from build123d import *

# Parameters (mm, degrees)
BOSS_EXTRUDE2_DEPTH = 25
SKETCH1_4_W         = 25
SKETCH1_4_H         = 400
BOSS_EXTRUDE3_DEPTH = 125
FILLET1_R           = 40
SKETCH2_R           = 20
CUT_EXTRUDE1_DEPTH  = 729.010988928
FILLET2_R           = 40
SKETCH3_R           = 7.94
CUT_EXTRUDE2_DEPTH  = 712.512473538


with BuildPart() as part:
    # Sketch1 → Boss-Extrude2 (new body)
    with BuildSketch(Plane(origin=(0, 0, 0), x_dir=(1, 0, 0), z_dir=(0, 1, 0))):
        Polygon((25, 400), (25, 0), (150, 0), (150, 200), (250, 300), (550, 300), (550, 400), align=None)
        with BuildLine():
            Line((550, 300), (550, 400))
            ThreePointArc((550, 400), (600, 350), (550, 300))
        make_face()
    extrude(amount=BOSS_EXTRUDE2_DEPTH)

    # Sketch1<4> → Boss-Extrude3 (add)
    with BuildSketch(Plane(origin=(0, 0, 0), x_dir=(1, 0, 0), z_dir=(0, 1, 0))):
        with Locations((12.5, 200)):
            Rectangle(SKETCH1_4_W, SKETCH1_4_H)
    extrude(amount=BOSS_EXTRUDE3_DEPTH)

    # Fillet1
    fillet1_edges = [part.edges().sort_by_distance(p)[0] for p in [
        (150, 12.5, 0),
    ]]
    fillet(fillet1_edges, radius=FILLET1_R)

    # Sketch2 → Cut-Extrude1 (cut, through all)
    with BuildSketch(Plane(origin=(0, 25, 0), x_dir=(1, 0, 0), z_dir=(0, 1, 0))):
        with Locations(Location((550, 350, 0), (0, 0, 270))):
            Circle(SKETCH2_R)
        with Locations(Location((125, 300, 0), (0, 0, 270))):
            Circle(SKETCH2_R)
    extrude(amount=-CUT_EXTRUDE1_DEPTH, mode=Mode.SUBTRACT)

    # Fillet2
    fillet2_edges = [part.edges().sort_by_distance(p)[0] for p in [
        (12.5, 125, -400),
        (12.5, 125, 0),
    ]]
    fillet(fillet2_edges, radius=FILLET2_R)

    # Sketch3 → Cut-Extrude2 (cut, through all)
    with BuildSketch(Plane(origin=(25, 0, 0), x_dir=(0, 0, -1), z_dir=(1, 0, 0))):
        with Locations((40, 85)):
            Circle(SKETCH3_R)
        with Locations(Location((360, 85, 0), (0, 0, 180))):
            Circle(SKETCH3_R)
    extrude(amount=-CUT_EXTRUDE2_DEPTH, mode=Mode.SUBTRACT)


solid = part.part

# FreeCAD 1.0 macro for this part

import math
import FreeCAD as App
import Part
import Sketcher

V = App.Vector


def edges_at(feature, points):
    """Names of the edges that pass closest to the given points."""
    edges = feature.Shape.Edges
    near = lambda p: min(range(len(edges)), key=lambda i: edges[i].distToShape(Part.Vertex(*p))[0])
    return sorted({f"Edge{near(p) + 1}" for p in points})

doc = App.newDocument("Part")
params = doc.addObject("Spreadsheet::Sheet", "Params")
for row, (alias, value) in enumerate([
    ("sketch1_radius", "50 mm"),
    ("sketch1_width", "125 mm"),
    ("sketch1_width2", "300 mm"),
    ("sketch1_width3", "525 mm"),
    ("sketch1_height", "400 mm"),
    ("pad1_length", "25 mm"),
    ("sketch2_width", "25 mm"),
    ("sketch2_height", "400 mm"),
    ("pad2_length", "125 mm"),
    ("fillet_radius", "40 mm"),
    ("sketch3_diameter", "40 mm"),
    ("fillet2_radius", "40 mm"),
    ("sketch4_diameter", "15.88 mm"),
], start=1):
    params.set(f"A{row}", alias)
    params.set(f"B{row}", "=" + value)
    params.setAlias(f"B{row}", alias)

body = doc.addObject("PartDesign::Body", "Body")

# Sketch on XZ plane
sketch1 = doc.addObject("Sketcher::SketchObject", "Sketch")
body.addObject(sketch1)
sketch1.AttachmentSupport = (doc.XZ_Plane, [""])
sketch1.MapMode = "FlatFace"
sketch1.addGeometry([
    Part.LineSegment(V(25, -400, 0), V(25, 0, 0)),  # 0
    Part.LineSegment(V(25, 0, 0), V(150, 0, 0)),  # 1
    Part.LineSegment(V(150, 0, 0), V(150, -200, 0)),  # 2
    Part.LineSegment(V(150, -200, 0), V(250, -300, 0)),  # 3
    Part.LineSegment(V(250, -300, 0), V(550, -300, 0)),  # 4
    Part.ArcOfCircle(Part.Circle(V(550, -350, 0), V(0, 0, 1), 50), math.radians(-90), math.radians(90)),  # 5
    Part.LineSegment(V(550, -400, 0), V(25, -400, 0)),  # 6
], False)
sketch1.addConstraint([
    Sketcher.Constraint("Coincident", 0, 2, 1, 1),
    Sketcher.Constraint("Coincident", 1, 2, 2, 1),
    Sketcher.Constraint("Coincident", 2, 2, 3, 1),
    Sketcher.Constraint("Coincident", 3, 2, 4, 1),
    Sketcher.Constraint("Tangent", 4, 2, 5, 2),
    Sketcher.Constraint("Tangent", 5, 1, 6, 1),
    Sketcher.Constraint("Coincident", 6, 2, 0, 1),
    Sketcher.Constraint("Vertical", 0),
    Sketcher.Constraint("Horizontal", 1),
    Sketcher.Constraint("Vertical", 2),
    Sketcher.Constraint("Horizontal", 4),
    Sketcher.Constraint("Horizontal", 6),
    Sketcher.Constraint("PointOnObject", 0, 2, -1),
    Sketcher.Constraint("Radius", 5, 50.0),
    Sketcher.Constraint("DistanceX", 1, 1, 1, 2, 125.0),
    Sketcher.Constraint("DistanceX", 4, 1, 4, 2, 300.0),
    Sketcher.Constraint("DistanceX", 6, 2, 6, 1, 525.0),
    Sketcher.Constraint("DistanceY", 0, 1, 0, 2, 400.0),
    Sketcher.Constraint("DistanceY", 2, 2, 2, 1, 200.0),
    Sketcher.Constraint("DistanceX", -1, 1, 5, 3, 550.0),
])
sketch1.setExpression("Constraints[13]", "Params.sketch1_radius")
sketch1.setExpression("Constraints[14]", "Params.sketch1_width")
sketch1.setExpression("Constraints[15]", "Params.sketch1_width2")
sketch1.setExpression("Constraints[16]", "Params.sketch1_width3")
sketch1.setExpression("Constraints[17]", "Params.sketch1_height")
pad1 = doc.addObject("PartDesign::Pad", "Pad")
body.addObject(pad1)
pad1.Profile = sketch1
pad1.setExpression("Length", "Params.pad1_length")
pad1.Reversed = True

# Sketch on XZ plane
sketch2 = doc.addObject("Sketcher::SketchObject", "Sketch001")
body.addObject(sketch2)
sketch2.AttachmentSupport = (doc.XZ_Plane, [""])
sketch2.MapMode = "FlatFace"
sketch2.addGeometry([
    Part.LineSegment(V(0, -400, 0), V(0, 0, 0)),
    Part.LineSegment(V(0, 0, 0), V(25, 0, 0)),
    Part.LineSegment(V(25, 0, 0), V(25, -400, 0)),
    Part.LineSegment(V(25, -400, 0), V(0, -400, 0)),
], False)
sketch2.addConstraint([
    Sketcher.Constraint("Coincident", 0, 2, 1, 1),
    Sketcher.Constraint("Coincident", 1, 2, 2, 1),
    Sketcher.Constraint("Coincident", 2, 2, 3, 1),
    Sketcher.Constraint("Coincident", 3, 2, 0, 1),
    Sketcher.Constraint("Vertical", 0),
    Sketcher.Constraint("Horizontal", 1),
    Sketcher.Constraint("Vertical", 2),
    Sketcher.Constraint("Horizontal", 3),
    Sketcher.Constraint("Coincident", 0, 2, -1, 1),
    Sketcher.Constraint("DistanceX", 1, 1, 1, 2, 25.0),
    Sketcher.Constraint("DistanceY", 0, 1, 0, 2, 400.0),
])
sketch2.setExpression("Constraints[9]", "Params.sketch2_width")
sketch2.setExpression("Constraints[10]", "Params.sketch2_height")
pad2 = doc.addObject("PartDesign::Pad", "Pad001")
body.addObject(pad2)
pad2.Profile = sketch2
pad2.setExpression("Length", "Params.pad2_length")
pad2.Reversed = True
doc.recompute()

fillet = doc.addObject("PartDesign::Fillet", "Fillet")
body.addObject(fillet)
fillet.Base = (pad2, edges_at(pad2, [(150, 12.5, 0)]))
fillet.setExpression("Radius", "Params.fillet_radius")

# Sketch on XZ plane
sketch3 = doc.addObject("Sketcher::SketchObject", "Sketch002")
body.addObject(sketch3)
sketch3.AttachmentSupport = (doc.XZ_Plane, [""])
sketch3.MapMode = "FlatFace"
sketch3.AttachmentOffset = App.Placement(V(0, 0, -25), App.Rotation())
sketch3.addGeometry([
    Part.Circle(V(550, -350, 0), V(0, 0, 1), 20),
    Part.Circle(V(125, -300, 0), V(0, 0, 1), 20),
], False)
sketch3.addConstraint([
    Sketcher.Constraint("Equal", 0, 1),
    Sketcher.Constraint("Diameter", 0, 40.0),
    Sketcher.Constraint("DistanceX", -1, 1, 0, 3, 550.0),
    Sketcher.Constraint("DistanceY", 0, 3, -1, 1, 350.0),
    Sketcher.Constraint("DistanceX", -1, 1, 1, 3, 125.0),
    Sketcher.Constraint("DistanceY", 1, 3, -1, 1, 300.0),
])
sketch3.setExpression("Constraints[1]", "Params.sketch3_diameter")
pocket1 = doc.addObject("PartDesign::Pocket", "Pocket")
body.addObject(pocket1)
pocket1.Profile = sketch3
pocket1.Type = "ThroughAll"
pocket1.Reversed = True
doc.recompute()

fillet2 = doc.addObject("PartDesign::Fillet", "Fillet001")
body.addObject(fillet2)
fillet2.Base = (pocket1, edges_at(pocket1, [(12.5, 125, -400), (12.5, 125, 0)]))
fillet2.setExpression("Radius", "Params.fillet2_radius")

# Sketch on YZ plane
sketch4 = doc.addObject("Sketcher::SketchObject", "Sketch003")
body.addObject(sketch4)
sketch4.AttachmentSupport = (doc.YZ_Plane, [""])
sketch4.MapMode = "FlatFace"
sketch4.AttachmentOffset = App.Placement(V(0, 0, 25), App.Rotation())
sketch4.addGeometry([
    Part.Circle(V(85, -40, 0), V(0, 0, 1), 8),
    Part.Circle(V(85, -360, 0), V(0, 0, 1), 8),
], False)
sketch4.addConstraint([
    Sketcher.Constraint("Equal", 0, 1),
    Sketcher.Constraint("Vertical", 0, 3, 1, 3),
    Sketcher.Constraint("Diameter", 0, 15.88),
    Sketcher.Constraint("DistanceX", -1, 1, 0, 3, 85.0),
    Sketcher.Constraint("DistanceY", 0, 3, -1, 1, 40.0),
    Sketcher.Constraint("DistanceY", 1, 3, -1, 1, 360.0),
])
sketch4.setExpression("Constraints[2]", "Params.sketch4_diameter")
pocket2 = doc.addObject("PartDesign::Pocket", "Pocket001")
body.addObject(pocket2)
pocket2.Profile = sketch4
pocket2.Type = "ThroughAll"

doc.recompute()
